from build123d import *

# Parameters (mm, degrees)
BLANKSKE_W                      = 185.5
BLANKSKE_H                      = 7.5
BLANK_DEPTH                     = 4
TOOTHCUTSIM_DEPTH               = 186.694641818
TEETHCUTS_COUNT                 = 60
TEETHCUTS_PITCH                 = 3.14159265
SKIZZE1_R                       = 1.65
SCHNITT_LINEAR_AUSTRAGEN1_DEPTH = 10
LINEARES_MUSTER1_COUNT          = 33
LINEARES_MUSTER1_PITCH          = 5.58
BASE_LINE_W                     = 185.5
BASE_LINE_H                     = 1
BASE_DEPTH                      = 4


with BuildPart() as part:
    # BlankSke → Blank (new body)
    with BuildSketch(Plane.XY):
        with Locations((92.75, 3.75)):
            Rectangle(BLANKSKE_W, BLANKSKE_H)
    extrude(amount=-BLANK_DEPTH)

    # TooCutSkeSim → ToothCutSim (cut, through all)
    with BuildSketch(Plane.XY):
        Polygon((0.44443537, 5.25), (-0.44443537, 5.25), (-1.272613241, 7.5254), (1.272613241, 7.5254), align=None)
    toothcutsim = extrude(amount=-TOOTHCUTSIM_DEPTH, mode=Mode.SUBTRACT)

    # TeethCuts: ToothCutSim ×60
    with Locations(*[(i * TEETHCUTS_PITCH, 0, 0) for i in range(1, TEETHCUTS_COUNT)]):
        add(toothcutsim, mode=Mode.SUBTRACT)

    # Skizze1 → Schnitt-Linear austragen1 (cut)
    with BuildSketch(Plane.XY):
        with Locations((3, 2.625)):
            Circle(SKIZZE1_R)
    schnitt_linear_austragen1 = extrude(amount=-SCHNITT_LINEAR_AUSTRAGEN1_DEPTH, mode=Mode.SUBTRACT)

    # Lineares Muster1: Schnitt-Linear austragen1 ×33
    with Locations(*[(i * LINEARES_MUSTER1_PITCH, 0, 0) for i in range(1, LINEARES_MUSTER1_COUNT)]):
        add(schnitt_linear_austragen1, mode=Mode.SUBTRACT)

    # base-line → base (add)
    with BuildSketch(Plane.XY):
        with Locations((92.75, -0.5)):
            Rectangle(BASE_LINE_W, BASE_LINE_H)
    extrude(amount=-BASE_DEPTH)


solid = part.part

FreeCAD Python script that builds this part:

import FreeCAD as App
import Part
import Sketcher

V = App.Vector
Q = App.Units.Quantity


def add_polygon(sketch, points):
    """Adds a closed chain of lines whose ends are joined by coincident constraints."""
    first, n = sketch.GeometryCount, len(points)
    for a, b in zip(points, points[1:] + points[:1]):
        sketch.addGeometry(Part.LineSegment(App.Vector(*a, 0), App.Vector(*b, 0)), False)
    for i in range(n):
        sketch.addConstraint(Sketcher.Constraint("Coincident", first + i, 2, first + (i + 1) % n, 1))

doc = App.newDocument("Part")
body = doc.addObject("PartDesign::Body", "Body")

sketch1 = doc.addObject("Sketcher::SketchObject", "Sketch")
body.addObject(sketch1)
sketch1.AttachmentSupport = (doc.XY_Plane, [""])
sketch1.MapMode = "FlatFace"
add_polygon(sketch1, [(0, 8), (0, 0), (186, 0), (186, 8)])
sketch1.addConstraint([
    Sketcher.Constraint("Vertical", 0),
    Sketcher.Constraint("Horizontal", 1),
    Sketcher.Constraint("Vertical", 2),
    Sketcher.Constraint("Horizontal", 3),
    Sketcher.Constraint("Coincident", 0, 2, -1, 1),
    Sketcher.Constraint("DistanceX", 1, 1, 1, 2, 185.5),
    Sketcher.Constraint("DistanceY", 0, 2, 0, 1, 7.5),
])
pad1 = doc.addObject("PartDesign::Pad", "Pad")
body.addObject(pad1)
pad1.Profile = sketch1
pad1.Length = 4
pad1.Reversed = True

sketch2 = doc.addObject("Sketcher::SketchObject", "Sketch001")
body.addObject(sketch2)
sketch2.AttachmentSupport = (doc.XY_Plane, [""])
sketch2.MapMode = "FlatFace"
add_polygon(sketch2, [(-0.4, 5.2), (0.4, 5.2), (1.3, 7.5), (-1.3, 7.5)])
sketch2.addConstraint([
    Sketcher.Constraint("Horizontal", 0),
    Sketcher.Constraint("Horizontal", 2),
    Sketcher.Constraint("Equal", 1, 3),
    Sketcher.Constraint("Angle", 1, Q("70 deg")),
    Sketcher.Constraint("DistanceY", -1, 1, 0, 2, 5.25),
    Sketcher.Constraint("DistanceX", 0, 1, 0, 2, 0.888871),
    Sketcher.Constraint("DistanceY", -1, 1, 1, 2, 7.5254),
    Sketcher.Constraint("DistanceX", -1, 1, 0, 2, 0.444435),
])
pocket1 = doc.addObject("PartDesign::Pocket", "Pocket")
body.addObject(pocket1)
pocket1.Profile = sketch2
pocket1.Type = "ThroughAll"
doc.recompute()

linearpattern = doc.addObject("PartDesign::LinearPattern", "LinearPattern")
body.addObject(linearpattern)
linearpattern.Originals = [pocket1]
linearpattern.Direction = (doc.X_Axis, [""])
linearpattern.Mode = "offset"
linearpattern.Offset = 3.141593
linearpattern.Occurrences = 60
body.Tip = linearpattern

sketch3 = doc.addObject("Sketcher::SketchObject", "Sketch002")
body.addObject(sketch3)
sketch3.AttachmentSupport = (doc.XY_Plane, [""])
sketch3.MapMode = "FlatFace"
sketch3.addGeometry(Part.Circle(V(3, 2.6, 0), V(0, 0, 1), 1.6), False)
sketch3.addConstraint([
    Sketcher.Constraint("Diameter", 0, 3.3),
    Sketcher.Constraint("DistanceX", -1, 1, 0, 3, 3.0),
    Sketcher.Constraint("DistanceY", -1, 1, 0, 3, 2.625),
])
pocket2 = doc.addObject("PartDesign::Pocket", "Pocket001")
body.addObject(pocket2)
pocket2.Profile = sketch3
pocket2.Length = 10
doc.recompute()

linearpattern2 = doc.addObject("PartDesign::LinearPattern", "LinearPattern001")
body.addObject(linearpattern2)
linearpattern2.Originals = [pocket2]
linearpattern2.Direction = (doc.X_Axis, [""])
linearpattern2.Mode = "offset"
linearpattern2.Offset = 5.58
linearpattern2.Occurrences = 33
body.Tip = linearpattern2

sketch4 = doc.addObject("Sketcher::SketchObject", "Sketch003")
body.addObject(sketch4)
sketch4.AttachmentSupport = (doc.XY_Plane, [""])
sketch4.MapMode = "FlatFace"
add_polygon(sketch4, [(0, 0), (0, -1), (185.5, -1), (185.5, 0)])
sketch4.addConstraint([
    Sketcher.Constraint("Vertical", 0),
    Sketcher.Constraint("Horizontal", 1),
    Sketcher.Constraint("Vertical", 2),
    Sketcher.Constraint("Horizontal", 3),
    Sketcher.Constraint("Coincident", 3, 2, -1, 1),
    Sketcher.Constraint("DistanceY", 0, 2, 0, 1, 1.0),
    Sketcher.Constraint("DistanceX", 1, 1, 1, 2, 185.5),
])
pad2 = doc.addObject("PartDesign::Pad", "Pad001")
body.addObject(pad2)
pad2.Profile = sketch4
pad2.Length = 4
pad2.Reversed = True

doc.recompute()
